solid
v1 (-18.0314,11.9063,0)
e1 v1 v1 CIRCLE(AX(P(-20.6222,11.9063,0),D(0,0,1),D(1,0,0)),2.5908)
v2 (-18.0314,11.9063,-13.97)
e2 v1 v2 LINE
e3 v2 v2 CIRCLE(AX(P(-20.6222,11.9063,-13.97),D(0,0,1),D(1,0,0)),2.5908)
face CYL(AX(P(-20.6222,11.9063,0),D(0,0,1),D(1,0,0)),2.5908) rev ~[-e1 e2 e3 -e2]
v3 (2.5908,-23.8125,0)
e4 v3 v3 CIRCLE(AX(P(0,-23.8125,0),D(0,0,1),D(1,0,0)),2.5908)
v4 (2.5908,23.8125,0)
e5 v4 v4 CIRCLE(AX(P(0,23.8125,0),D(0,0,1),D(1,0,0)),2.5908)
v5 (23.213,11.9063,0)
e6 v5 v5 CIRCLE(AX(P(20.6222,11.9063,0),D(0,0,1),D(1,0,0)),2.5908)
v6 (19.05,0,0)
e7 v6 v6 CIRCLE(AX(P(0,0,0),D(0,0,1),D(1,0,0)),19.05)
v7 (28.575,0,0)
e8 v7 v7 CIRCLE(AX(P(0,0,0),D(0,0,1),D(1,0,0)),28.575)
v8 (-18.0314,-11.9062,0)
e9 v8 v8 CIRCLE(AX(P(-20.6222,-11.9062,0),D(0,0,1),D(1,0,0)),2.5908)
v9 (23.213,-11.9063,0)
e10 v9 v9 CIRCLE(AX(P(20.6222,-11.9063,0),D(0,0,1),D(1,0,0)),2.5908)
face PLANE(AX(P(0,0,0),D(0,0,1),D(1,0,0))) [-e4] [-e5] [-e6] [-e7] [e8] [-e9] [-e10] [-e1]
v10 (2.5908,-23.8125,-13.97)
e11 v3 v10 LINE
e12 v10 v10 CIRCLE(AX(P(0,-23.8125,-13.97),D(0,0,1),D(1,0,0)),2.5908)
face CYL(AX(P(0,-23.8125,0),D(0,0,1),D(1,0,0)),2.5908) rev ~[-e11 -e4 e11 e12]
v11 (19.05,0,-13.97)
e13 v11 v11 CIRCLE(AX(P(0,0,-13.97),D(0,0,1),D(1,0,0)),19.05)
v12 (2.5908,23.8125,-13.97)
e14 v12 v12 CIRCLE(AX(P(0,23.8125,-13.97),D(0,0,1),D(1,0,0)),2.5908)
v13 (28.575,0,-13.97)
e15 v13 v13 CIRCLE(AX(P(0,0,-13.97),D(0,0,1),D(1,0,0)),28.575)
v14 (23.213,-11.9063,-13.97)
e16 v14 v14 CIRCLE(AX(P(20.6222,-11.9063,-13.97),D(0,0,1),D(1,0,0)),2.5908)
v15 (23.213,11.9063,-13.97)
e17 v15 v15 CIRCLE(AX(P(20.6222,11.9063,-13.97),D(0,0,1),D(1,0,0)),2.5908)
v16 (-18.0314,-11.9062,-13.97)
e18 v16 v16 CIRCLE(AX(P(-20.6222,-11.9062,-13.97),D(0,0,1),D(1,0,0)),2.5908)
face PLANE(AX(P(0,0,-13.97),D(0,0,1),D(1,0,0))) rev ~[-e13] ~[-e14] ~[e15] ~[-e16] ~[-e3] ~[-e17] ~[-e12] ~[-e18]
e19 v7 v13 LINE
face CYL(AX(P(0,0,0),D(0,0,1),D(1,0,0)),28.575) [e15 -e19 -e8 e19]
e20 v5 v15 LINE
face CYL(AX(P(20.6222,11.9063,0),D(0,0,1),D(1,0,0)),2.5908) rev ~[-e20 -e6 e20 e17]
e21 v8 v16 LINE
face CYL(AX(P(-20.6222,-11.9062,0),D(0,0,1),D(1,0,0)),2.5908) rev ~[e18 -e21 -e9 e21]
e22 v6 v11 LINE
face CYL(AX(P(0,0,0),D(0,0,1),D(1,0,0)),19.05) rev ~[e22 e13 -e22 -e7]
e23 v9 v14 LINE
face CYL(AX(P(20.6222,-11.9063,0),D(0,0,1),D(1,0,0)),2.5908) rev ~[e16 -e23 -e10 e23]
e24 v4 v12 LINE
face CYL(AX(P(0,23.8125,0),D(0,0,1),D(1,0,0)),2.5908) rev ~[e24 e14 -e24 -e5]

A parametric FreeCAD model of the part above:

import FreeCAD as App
import Part
import Sketcher

V = App.Vector
Q = App.Units.Quantity

doc = App.newDocument("Part")
params = doc.addObject("Spreadsheet::Sheet", "Params")
for row, (alias, value) in enumerate([
    ("sketch1_diameter", "1.5 in"),
    ("sketch1_diameter2", "2.25 in"),
    ("sketch1_diameter3", "0.204 in"),
    ("pad1_length", "0.55 in"),
], start=1):
    params.set(f"A{row}", alias)
    params.set(f"B{row}", "=" + value)
    params.setAlias(f"B{row}", alias)

body = doc.addObject("PartDesign::Body", "Body")

# Sketch on XY plane
sketch1 = body.newObject("Sketcher::SketchObject", "Sketch")
sketch1.AttachmentSupport = (doc.getObject("XY_Plane"), [""])
sketch1.MapMode = "FlatFace"
sketch1.addGeometry([
    Part.Circle(V(0, 0, 0), V(0, 0, 1), 28.575),  # 0
    Part.Circle(V(-20.6222, -11.9062, 0), V(0, 0, 1), 2.5908),  # 1
    Part.Circle(V(0, -23.8125, 0), V(0, 0, 1), 2.5908),  # 2
    Part.Circle(V(20.6222, -11.9063, 0), V(0, 0, 1), 2.5908),  # 3
    Part.Circle(V(-20.6222, 11.9063, 0), V(0, 0, 1), 2.5908),  # 4
    Part.Circle(V(0, 0, 0), V(0, 0, 1), 19.05),  # 5
    Part.Circle(V(20.6222, 11.9063, 0), V(0, 0, 1), 2.5908),  # 6
    Part.Circle(V(0, 23.8125, 0), V(0, 0, 1), 2.5908),  # 7
], False)
sketch1.addConstraint([
    Sketcher.Constraint("Coincident", 0, 3, -1, 1),
    Sketcher.Constraint("Coincident", 5, 3, -1, 1),
    Sketcher.Constraint("Equal", 1, 2),
    Sketcher.Constraint("Equal", 2, 3),
    Sketcher.Constraint("Equal", 3, 4),
    Sketcher.Constraint("Equal", 4, 6),
    Sketcher.Constraint("Equal", 6, 7),
    Sketcher.Constraint("Symmetric", 3, 3, 4, 3, -1, 1),
    Sketcher.Constraint("Symmetric", 1, 3, 6, 3, -1, 1),
    Sketcher.Constraint("Symmetric", 2, 3, 7, 3, -1, 1),
    Sketcher.Constraint("Symmetric", 1, 3, 3, 3, -2),
    Sketcher.Constraint("PointOnObject", 2, 3, -2),
    Sketcher.Constraint("Diameter", 5, Q("1.5 in")),
    Sketcher.Constraint("Diameter", 0, Q("2.25 in")),
    Sketcher.Constraint("Diameter", 1, Q("0.204 in")),
    Sketcher.Constraint("DistanceY", 1, 3, -1, 1, Q("0.468748 in")),
    Sketcher.Constraint("DistanceY", 2, 3, -1, 1, Q("0.9375 in")),
    Sketcher.Constraint("DistanceX", 1, 3, -1, 1, Q("0.8119 in")),
])
sketch1.setExpression("Constraints[12]", "Params.sketch1_diameter")
sketch1.setExpression("Constraints[13]", "Params.sketch1_diameter2")
sketch1.setExpression("Constraints[14]", "Params.sketch1_diameter3")
pad1 = body.newObject("PartDesign::Pad", "Pad")
pad1.Profile = sketch1
pad1.setExpression("Length", "Params.pad1_length")
pad1.Reversed = True

doc.recompute()
